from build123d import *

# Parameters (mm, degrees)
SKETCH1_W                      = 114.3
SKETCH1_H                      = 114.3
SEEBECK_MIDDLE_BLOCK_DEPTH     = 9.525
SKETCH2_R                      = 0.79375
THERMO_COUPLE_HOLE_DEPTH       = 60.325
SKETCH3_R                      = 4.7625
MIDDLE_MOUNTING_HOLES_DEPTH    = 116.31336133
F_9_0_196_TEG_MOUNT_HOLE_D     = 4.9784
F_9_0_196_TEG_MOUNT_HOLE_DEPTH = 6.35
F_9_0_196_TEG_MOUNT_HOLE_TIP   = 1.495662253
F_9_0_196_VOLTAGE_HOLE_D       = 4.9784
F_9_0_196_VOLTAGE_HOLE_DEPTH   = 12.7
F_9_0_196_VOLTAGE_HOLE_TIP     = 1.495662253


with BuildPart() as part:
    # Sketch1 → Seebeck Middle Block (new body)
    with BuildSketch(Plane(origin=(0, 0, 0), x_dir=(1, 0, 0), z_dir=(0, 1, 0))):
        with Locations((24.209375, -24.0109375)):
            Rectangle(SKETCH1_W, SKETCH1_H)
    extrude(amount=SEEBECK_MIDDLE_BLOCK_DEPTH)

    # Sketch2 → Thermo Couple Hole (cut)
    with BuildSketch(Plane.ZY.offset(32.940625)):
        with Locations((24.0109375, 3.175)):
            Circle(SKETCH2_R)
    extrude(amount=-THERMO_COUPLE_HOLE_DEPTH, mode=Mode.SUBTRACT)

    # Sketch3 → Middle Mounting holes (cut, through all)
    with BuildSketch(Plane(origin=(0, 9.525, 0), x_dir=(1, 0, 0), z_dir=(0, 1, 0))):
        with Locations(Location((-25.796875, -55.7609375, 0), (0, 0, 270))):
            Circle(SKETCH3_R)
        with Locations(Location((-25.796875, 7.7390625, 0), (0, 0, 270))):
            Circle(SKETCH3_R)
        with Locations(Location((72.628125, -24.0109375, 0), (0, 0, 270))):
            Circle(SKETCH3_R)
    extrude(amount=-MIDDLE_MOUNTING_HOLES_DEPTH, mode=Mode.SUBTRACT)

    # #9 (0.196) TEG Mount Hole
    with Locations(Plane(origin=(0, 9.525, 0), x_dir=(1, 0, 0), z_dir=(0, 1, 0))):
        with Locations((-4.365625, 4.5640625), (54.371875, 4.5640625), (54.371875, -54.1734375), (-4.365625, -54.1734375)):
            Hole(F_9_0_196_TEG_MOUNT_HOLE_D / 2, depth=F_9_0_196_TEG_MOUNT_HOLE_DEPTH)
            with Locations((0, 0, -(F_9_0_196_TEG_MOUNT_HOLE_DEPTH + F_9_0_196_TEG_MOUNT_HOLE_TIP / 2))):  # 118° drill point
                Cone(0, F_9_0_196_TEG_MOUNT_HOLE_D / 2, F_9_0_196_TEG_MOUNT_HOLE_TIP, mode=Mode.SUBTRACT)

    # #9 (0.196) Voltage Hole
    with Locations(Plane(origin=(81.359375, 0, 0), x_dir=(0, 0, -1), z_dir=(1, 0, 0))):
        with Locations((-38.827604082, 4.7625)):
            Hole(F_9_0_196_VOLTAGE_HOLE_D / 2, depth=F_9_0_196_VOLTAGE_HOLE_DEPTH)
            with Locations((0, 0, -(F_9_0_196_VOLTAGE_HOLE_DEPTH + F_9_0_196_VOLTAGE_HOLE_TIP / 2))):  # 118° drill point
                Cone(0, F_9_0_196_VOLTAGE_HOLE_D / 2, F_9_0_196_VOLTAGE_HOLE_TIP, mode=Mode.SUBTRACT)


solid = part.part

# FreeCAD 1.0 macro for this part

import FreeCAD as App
import Part
import Sketcher
Q = App.Units.Quantity


def add_polygon(sketch, points):
    """Adds a closed chain of lines whose ends are joined by coincident constraints."""
    first, n = sketch.GeometryCount, len(points)
    for a, b in zip(points, points[1:] + points[:1]):
        sketch.addGeometry(Part.LineSegment(App.Vector(*a, 0), App.Vector(*b, 0)), False)
    for i in range(n):
        sketch.addConstraint(Sketcher.Constraint("Coincident", first + i, 2, first + (i + 1) % n, 1))

doc = App.newDocument("Part")
body = doc.addObject("PartDesign::Body", "Body")

sketch1 = body.newObject("Sketcher::SketchObject", "Sketch")
sketch1.AttachmentSupport = (doc.getObject("XZ_Plane"), [""])
sketch1.MapMode = "FlatFace"
add_polygon(sketch1, [(-32.940625, -33.139063), (-32.940625, 81.160938), (81.359375, 81.160938), (81.359375, -33.139063)])
sketch1.addConstraint(Sketcher.Constraint("Vertical", 0))
sketch1.addConstraint(Sketcher.Constraint("Horizontal", 1))
sketch1.addConstraint(Sketcher.Constraint("Vertical", 2))
sketch1.addConstraint(Sketcher.Constraint("Horizontal", 3))
sketch1.addConstraint(Sketcher.Constraint("Equal", 3, 0))
sketch1.addConstraint(Sketcher.Constraint("DistanceX", 1, 1, 1, 2, Q("4.5 in")))
sketch1.addConstraint(Sketcher.Constraint("DistanceX", 0, 2, -1, 1, Q("1.296875 in")))
sketch1.addConstraint(Sketcher.Constraint("DistanceY", -1, 1, 0, 2, Q("81.160938 mm")))
pad1 = body.newObject("PartDesign::Pad", "Pad")
pad1.Profile = sketch1
pad1.Length = Q("0.375 in")
pad1.Reversed = True

sketch2 = body.newObject("Sketcher::SketchObject", "Sketch001")
sketch2.AttachmentSupport = (doc.getObject("YZ_Plane"), [""])
sketch2.MapMode = "FlatFace"
sketch2.AttachmentOffset = App.Placement(App.Vector(0, 0, -1.296875 * 25.4), App.Rotation())
sketch2.addGeometry(Part.Circle(App.Vector(3.175, 24.010938, 0), App.Vector(0, 0, 1), 0.79375), False)
sketch2.addConstraint(Sketcher.Constraint("Diameter", 0, Q("0.0625 in")))
sketch2.addConstraint(Sketcher.Constraint("DistanceX", -1, 1, 0, 3, Q("0.125 in")))
sketch2.addConstraint(Sketcher.Constraint("DistanceY", -1, 1, 0, 3, Q("24.010938 mm")))
pocket1 = body.newObject("PartDesign::Pocket", "Pocket")
pocket1.Profile = sketch2
pocket1.Length = Q("2.375 in")
pocket1.Reversed = True

sketch3 = body.newObject("Sketcher::SketchObject", "Sketch002")
sketch3.AttachmentSupport = (doc.getObject("XZ_Plane"), [""])
sketch3.MapMode = "FlatFace"
sketch3.AttachmentOffset = App.Placement(App.Vector(0, 0, -0.375 * 25.4), App.Rotation())
sketch3.addGeometry(Part.Circle(App.Vector(-25.796875, 55.760937, 0), App.Vector(0, 0, 1), 4.7625), False)
sketch3.addGeometry(Part.Circle(App.Vector(-25.796875, -7.739063, 0), App.Vector(0, 0, 1), 4.7625), False)
sketch3.addGeometry(Part.Circle(App.Vector(72.628125, 24.010938, 0), App.Vector(0, 0, 1), 4.7625), False)
sketch3.addConstraint(Sketcher.Constraint("Equal", 0, 1))
sketch3.addConstraint(Sketcher.Constraint("Equal", 1, 2))
sketch3.addConstraint(Sketcher.Constraint("Vertical", 0, 3, 1, 3))
sketch3.addConstraint(Sketcher.Constraint("Diameter", 0, Q("0.375 in")))
sketch3.addConstraint(Sketcher.Constraint("DistanceY", 1, 3, 0, 3, Q("2.5 in")))
sketch3.addConstraint(Sketcher.Constraint("DistanceY", 2, 3, 0, 3, Q("1.25 in")))
sketch3.addConstraint(Sketcher.Constraint("DistanceX", 0, 3, -1, 1, Q("1.015625 in")))
sketch3.addConstraint(Sketcher.Constraint("DistanceX", -1, 1, 2, 3, Q("2.859375 in")))
sketch3.addConstraint(Sketcher.Constraint("DistanceY", -1, 1, 0, 3, Q("55.760937 mm")))
pocket2 = body.newObject("PartDesign::Pocket", "Pocket001")
pocket2.Profile = sketch3
pocket2.Type = "ThroughAll"
pocket2.Reversed = True

sketch4 = body.newObject("Sketcher::SketchObject", "Sketch003")
sketch4.AttachmentSupport = (doc.getObject("XZ_Plane"), [""])
sketch4.MapMode = "FlatFace"
sketch4.AttachmentOffset = App.Placement(App.Vector(0, 0, -0.375 * 25.4), App.Rotation())
sketch4.addGeometry(Part.Circle(App.Vector(-4.365625, -4.564063, 0), App.Vector(0, 0, 1), 2.4892), False)
sketch4.addGeometry(Part.Circle(App.Vector(54.371875, -4.564063, 0), App.Vector(0, 0, 1), 2.4892), False)
sketch4.addGeometry(Part.Circle(App.Vector(54.371875, 54.173437, 0), App.Vector(0, 0, 1), 2.4892), False)
sketch4.addGeometry(Part.Circle(App.Vector(-4.365625, 54.173437, 0), App.Vector(0, 0, 1), 2.4892), False)
sketch4.addConstraint(Sketcher.Constraint("Equal", 0, 1))
sketch4.addConstraint(Sketcher.Constraint("Equal", 1, 2))
sketch4.addConstraint(Sketcher.Constraint("Equal", 2, 3))
sketch4.addConstraint(Sketcher.Constraint("Horizontal", 0, 3, 1, 3))
sketch4.addConstraint(Sketcher.Constraint("Horizontal", 2, 3, 3, 3))
sketch4.addConstraint(Sketcher.Constraint("Vertical", 1, 3, 2, 3))
sketch4.addConstraint(Sketcher.Constraint("Vertical", 0, 3, 3, 3))
sketch4.addConstraint(Sketcher.Constraint("Diameter", 0, Q("0.196 in")))
sketch4.addConstraint(Sketcher.Constraint("DistanceX", 0, 3, -1, 1, Q("0.171875 in")))
sketch4.addConstraint(Sketcher.Constraint("DistanceX", -1, 1, 1, 3, Q("2.140625 in")))
sketch4.addConstraint(Sketcher.Constraint("DistanceY", 1, 3, 2, 3, Q("2.3125 in")))
sketch4.addConstraint(Sketcher.Constraint("DistanceY", 0, 3, -1, 1, Q("4.564063 mm")))
doc.recompute()
hole = body.newObject("PartDesign::Hole", "Hole")
hole.Profile = sketch4
hole.ThreadType = "None"
hole.Diameter = Q("0.196 in")
hole.DepthType = "Dimension"
hole.Depth = Q("0.25 in")
hole.DrillPoint = "Angled"
hole.DrillPointAngle = 118
hole.Reversed = True

sketch5 = body.newObject("Sketcher::SketchObject", "Sketch004")
sketch5.AttachmentSupport = (doc.getObject("YZ_Plane"), [""])
sketch5.MapMode = "FlatFace"
sketch5.AttachmentOffset = App.Placement(App.Vector(0, 0, 3.203125 * 25.4), App.Rotation())
sketch5.addGeometry(Part.Circle(App.Vector(4.7625, 38.827604, 0), App.Vector(0, 0, 1), 2.4892), False)
sketch5.addConstraint(Sketcher.Constraint("Diameter", 0, Q("0.196 in")))
sketch5.addConstraint(Sketcher.Constraint("DistanceX", -1, 1, 0, 3, Q("0.1875 in")))
sketch5.addConstraint(Sketcher.Constraint("DistanceY", -1, 1, 0, 3, Q("38.827604 mm")))
doc.recompute()
hole2 = body.newObject("PartDesign::Hole", "Hole001")
hole2.Profile = sketch5
hole2.ThreadType = "None"
hole2.Diameter = Q("0.196 in")
hole2.DepthType = "Dimension"
hole2.Depth = Q("0.5 in")
hole2.DrillPoint = "Angled"
hole2.DrillPointAngle = 118

doc.recompute()
